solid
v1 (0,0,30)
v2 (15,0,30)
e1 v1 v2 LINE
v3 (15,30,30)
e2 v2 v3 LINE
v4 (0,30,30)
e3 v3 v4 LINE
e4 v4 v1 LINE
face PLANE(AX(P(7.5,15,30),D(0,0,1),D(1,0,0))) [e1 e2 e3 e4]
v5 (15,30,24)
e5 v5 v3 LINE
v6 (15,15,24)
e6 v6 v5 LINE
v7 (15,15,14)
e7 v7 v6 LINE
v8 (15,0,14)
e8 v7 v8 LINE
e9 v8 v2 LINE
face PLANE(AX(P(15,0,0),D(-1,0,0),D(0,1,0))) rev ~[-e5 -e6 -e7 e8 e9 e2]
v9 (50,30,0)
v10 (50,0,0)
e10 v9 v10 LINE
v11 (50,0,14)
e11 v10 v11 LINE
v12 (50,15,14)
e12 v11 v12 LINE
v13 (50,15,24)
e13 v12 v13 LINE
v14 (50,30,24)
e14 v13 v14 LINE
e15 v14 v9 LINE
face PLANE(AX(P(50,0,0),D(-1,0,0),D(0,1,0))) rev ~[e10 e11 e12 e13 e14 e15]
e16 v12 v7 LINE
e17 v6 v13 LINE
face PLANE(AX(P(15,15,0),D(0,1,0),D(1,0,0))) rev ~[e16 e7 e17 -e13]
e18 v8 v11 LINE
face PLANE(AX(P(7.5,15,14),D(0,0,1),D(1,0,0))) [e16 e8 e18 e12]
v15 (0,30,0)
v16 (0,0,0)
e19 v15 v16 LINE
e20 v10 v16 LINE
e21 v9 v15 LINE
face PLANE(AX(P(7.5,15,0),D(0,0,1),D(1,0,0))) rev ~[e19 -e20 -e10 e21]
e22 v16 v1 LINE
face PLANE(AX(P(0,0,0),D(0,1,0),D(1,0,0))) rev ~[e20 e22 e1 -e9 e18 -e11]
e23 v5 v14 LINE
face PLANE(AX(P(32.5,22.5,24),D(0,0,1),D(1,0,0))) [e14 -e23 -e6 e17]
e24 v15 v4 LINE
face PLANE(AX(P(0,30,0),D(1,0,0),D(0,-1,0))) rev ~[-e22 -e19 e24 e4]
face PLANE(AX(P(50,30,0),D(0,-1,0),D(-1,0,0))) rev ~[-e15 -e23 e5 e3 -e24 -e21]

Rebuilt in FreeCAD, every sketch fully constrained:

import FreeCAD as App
import Part
import Sketcher

V = App.Vector

doc = App.newDocument("Part")
body = doc.addObject("PartDesign::Body", "Body")

# Sketch on XY plane
sketch1 = doc.addObject("Sketcher::SketchObject", "Sketch")
body.addObject(sketch1)
sketch1.AttachmentSupport = (doc.XY_Plane, [""])
sketch1.MapMode = "FlatFace"
sketch1.addGeometry(Part.LineSegment(V(0, 30, 0), V(0, 0, 0)), False)
sketch1.addGeometry(Part.LineSegment(V(0, 0, 0), V(50, 0, 0)), False)
sketch1.addGeometry(Part.LineSegment(V(50, 0, 0), V(50, 30, 0)), False)
sketch1.addGeometry(Part.LineSegment(V(50, 30, 0), V(0, 30, 0)), False)
sketch1.addConstraint(Sketcher.Constraint("Coincident", 0, 2, 1, 1))
sketch1.addConstraint(Sketcher.Constraint("Coincident", 1, 2, 2, 1))
sketch1.addConstraint(Sketcher.Constraint("Coincident", 2, 2, 3, 1))
sketch1.addConstraint(Sketcher.Constraint("Coincident", 3, 2, 0, 1))
sketch1.addConstraint(Sketcher.Constraint("Vertical", 0))
sketch1.addConstraint(Sketcher.Constraint("Horizontal", 1))
sketch1.addConstraint(Sketcher.Constraint("Vertical", 2))
sketch1.addConstraint(Sketcher.Constraint("Horizontal", 3))
sketch1.addConstraint(Sketcher.Constraint("Coincident", 0, 2, -1, 1))
sketch1.addConstraint(Sketcher.Constraint("DistanceX", 1, 1, 1, 2, 50.0))
sketch1.addConstraint(Sketcher.Constraint("DistanceY", 0, 2, 0, 1, 30.0))
pad1 = doc.addObject("PartDesign::Pad", "Pad")
body.addObject(pad1)
pad1.Profile = sketch1
pad1.Length = 14

# Sketch on XY plane
sketch2 = doc.addObject("Sketcher::SketchObject", "Sketch001")
body.addObject(sketch2)
sketch2.AttachmentSupport = (doc.XY_Plane, [""])
sketch2.MapMode = "FlatFace"
sketch2.addGeometry(Part.LineSegment(V(15, 30, 0), V(15, 15, 0)), False)
sketch2.addGeometry(Part.LineSegment(V(15, 15, 0), V(50, 15, 0)), False)
sketch2.addGeometry(Part.LineSegment(V(50, 15, 0), V(50, 30, 0)), False)
sketch2.addGeometry(Part.LineSegment(V(50, 30, 0), V(15, 30, 0)), False)
sketch2.addConstraint(Sketcher.Constraint("Coincident", 0, 2, 1, 1))
sketch2.addConstraint(Sketcher.Constraint("Coincident", 1, 2, 2, 1))
sketch2.addConstraint(Sketcher.Constraint("Coincident", 2, 2, 3, 1))
sketch2.addConstraint(Sketcher.Constraint("Coincident", 3, 2, 0, 1))
sketch2.addConstraint(Sketcher.Constraint("Vertical", 0))
sketch2.addConstraint(Sketcher.Constraint("Horizontal", 1))
sketch2.addConstraint(Sketcher.Constraint("Vertical", 2))
sketch2.addConstraint(Sketcher.Constraint("Horizontal", 3))
sketch2.addConstraint(Sketcher.Constraint("DistanceX", 1, 1, 1, 2, 35.0))
sketch2.addConstraint(Sketcher.Constraint("DistanceY", 0, 2, 0, 1, 15.0))
sketch2.addConstraint(Sketcher.Constraint("DistanceX", -1, 1, 0, 2, 15.0))
sketch2.addConstraint(Sketcher.Constraint("DistanceY", -1, 1, 0, 2, 15.0))
pad2 = doc.addObject("PartDesign::Pad", "Pad001")
body.addObject(pad2)
pad2.Profile = sketch2
pad2.Length = 24

# Sketch on XY plane
sketch3 = doc.addObject("Sketcher::SketchObject", "Sketch002")
body.addObject(sketch3)
sketch3.AttachmentSupport = (doc.XY_Plane, [""])
sketch3.MapMode = "FlatFace"
sketch3.addGeometry(Part.LineSegment(V(0, 30, 0), V(0, 0, 0)), False)
sketch3.addGeometry(Part.LineSegment(V(0, 0, 0), V(15, 0, 0)), False)
sketch3.addGeometry(Part.LineSegment(V(15, 0, 0), V(15, 30, 0)), False)
sketch3.addGeometry(Part.LineSegment(V(15, 30, 0), V(0, 30, 0)), False)
sketch3.addConstraint(Sketcher.Constraint("Coincident", 0, 2, 1, 1))
sketch3.addConstraint(Sketcher.Constraint("Coincident", 1, 2, 2, 1))
sketch3.addConstraint(Sketcher.Constraint("Coincident", 2, 2, 3, 1))
sketch3.addConstraint(Sketcher.Constraint("Coincident", 3, 2, 0, 1))
sketch3.addConstraint(Sketcher.Constraint("Vertical", 0))
sketch3.addConstraint(Sketcher.Constraint("Horizontal", 1))
sketch3.addConstraint(Sketcher.Constraint("Vertical", 2))
sketch3.addConstraint(Sketcher.Constraint("Horizontal", 3))
sketch3.addConstraint(Sketcher.Constraint("Coincident", 0, 2, -1, 1))
sketch3.addConstraint(Sketcher.Constraint("DistanceX", 1, 1, 1, 2, 15.0))
sketch3.addConstraint(Sketcher.Constraint("DistanceY", 0, 2, 0, 1, 30.0))
pad3 = doc.addObject("PartDesign::Pad", "Pad002")
body.addObject(pad3)
pad3.Profile = sketch3
pad3.Length = 30

doc.recompute()
